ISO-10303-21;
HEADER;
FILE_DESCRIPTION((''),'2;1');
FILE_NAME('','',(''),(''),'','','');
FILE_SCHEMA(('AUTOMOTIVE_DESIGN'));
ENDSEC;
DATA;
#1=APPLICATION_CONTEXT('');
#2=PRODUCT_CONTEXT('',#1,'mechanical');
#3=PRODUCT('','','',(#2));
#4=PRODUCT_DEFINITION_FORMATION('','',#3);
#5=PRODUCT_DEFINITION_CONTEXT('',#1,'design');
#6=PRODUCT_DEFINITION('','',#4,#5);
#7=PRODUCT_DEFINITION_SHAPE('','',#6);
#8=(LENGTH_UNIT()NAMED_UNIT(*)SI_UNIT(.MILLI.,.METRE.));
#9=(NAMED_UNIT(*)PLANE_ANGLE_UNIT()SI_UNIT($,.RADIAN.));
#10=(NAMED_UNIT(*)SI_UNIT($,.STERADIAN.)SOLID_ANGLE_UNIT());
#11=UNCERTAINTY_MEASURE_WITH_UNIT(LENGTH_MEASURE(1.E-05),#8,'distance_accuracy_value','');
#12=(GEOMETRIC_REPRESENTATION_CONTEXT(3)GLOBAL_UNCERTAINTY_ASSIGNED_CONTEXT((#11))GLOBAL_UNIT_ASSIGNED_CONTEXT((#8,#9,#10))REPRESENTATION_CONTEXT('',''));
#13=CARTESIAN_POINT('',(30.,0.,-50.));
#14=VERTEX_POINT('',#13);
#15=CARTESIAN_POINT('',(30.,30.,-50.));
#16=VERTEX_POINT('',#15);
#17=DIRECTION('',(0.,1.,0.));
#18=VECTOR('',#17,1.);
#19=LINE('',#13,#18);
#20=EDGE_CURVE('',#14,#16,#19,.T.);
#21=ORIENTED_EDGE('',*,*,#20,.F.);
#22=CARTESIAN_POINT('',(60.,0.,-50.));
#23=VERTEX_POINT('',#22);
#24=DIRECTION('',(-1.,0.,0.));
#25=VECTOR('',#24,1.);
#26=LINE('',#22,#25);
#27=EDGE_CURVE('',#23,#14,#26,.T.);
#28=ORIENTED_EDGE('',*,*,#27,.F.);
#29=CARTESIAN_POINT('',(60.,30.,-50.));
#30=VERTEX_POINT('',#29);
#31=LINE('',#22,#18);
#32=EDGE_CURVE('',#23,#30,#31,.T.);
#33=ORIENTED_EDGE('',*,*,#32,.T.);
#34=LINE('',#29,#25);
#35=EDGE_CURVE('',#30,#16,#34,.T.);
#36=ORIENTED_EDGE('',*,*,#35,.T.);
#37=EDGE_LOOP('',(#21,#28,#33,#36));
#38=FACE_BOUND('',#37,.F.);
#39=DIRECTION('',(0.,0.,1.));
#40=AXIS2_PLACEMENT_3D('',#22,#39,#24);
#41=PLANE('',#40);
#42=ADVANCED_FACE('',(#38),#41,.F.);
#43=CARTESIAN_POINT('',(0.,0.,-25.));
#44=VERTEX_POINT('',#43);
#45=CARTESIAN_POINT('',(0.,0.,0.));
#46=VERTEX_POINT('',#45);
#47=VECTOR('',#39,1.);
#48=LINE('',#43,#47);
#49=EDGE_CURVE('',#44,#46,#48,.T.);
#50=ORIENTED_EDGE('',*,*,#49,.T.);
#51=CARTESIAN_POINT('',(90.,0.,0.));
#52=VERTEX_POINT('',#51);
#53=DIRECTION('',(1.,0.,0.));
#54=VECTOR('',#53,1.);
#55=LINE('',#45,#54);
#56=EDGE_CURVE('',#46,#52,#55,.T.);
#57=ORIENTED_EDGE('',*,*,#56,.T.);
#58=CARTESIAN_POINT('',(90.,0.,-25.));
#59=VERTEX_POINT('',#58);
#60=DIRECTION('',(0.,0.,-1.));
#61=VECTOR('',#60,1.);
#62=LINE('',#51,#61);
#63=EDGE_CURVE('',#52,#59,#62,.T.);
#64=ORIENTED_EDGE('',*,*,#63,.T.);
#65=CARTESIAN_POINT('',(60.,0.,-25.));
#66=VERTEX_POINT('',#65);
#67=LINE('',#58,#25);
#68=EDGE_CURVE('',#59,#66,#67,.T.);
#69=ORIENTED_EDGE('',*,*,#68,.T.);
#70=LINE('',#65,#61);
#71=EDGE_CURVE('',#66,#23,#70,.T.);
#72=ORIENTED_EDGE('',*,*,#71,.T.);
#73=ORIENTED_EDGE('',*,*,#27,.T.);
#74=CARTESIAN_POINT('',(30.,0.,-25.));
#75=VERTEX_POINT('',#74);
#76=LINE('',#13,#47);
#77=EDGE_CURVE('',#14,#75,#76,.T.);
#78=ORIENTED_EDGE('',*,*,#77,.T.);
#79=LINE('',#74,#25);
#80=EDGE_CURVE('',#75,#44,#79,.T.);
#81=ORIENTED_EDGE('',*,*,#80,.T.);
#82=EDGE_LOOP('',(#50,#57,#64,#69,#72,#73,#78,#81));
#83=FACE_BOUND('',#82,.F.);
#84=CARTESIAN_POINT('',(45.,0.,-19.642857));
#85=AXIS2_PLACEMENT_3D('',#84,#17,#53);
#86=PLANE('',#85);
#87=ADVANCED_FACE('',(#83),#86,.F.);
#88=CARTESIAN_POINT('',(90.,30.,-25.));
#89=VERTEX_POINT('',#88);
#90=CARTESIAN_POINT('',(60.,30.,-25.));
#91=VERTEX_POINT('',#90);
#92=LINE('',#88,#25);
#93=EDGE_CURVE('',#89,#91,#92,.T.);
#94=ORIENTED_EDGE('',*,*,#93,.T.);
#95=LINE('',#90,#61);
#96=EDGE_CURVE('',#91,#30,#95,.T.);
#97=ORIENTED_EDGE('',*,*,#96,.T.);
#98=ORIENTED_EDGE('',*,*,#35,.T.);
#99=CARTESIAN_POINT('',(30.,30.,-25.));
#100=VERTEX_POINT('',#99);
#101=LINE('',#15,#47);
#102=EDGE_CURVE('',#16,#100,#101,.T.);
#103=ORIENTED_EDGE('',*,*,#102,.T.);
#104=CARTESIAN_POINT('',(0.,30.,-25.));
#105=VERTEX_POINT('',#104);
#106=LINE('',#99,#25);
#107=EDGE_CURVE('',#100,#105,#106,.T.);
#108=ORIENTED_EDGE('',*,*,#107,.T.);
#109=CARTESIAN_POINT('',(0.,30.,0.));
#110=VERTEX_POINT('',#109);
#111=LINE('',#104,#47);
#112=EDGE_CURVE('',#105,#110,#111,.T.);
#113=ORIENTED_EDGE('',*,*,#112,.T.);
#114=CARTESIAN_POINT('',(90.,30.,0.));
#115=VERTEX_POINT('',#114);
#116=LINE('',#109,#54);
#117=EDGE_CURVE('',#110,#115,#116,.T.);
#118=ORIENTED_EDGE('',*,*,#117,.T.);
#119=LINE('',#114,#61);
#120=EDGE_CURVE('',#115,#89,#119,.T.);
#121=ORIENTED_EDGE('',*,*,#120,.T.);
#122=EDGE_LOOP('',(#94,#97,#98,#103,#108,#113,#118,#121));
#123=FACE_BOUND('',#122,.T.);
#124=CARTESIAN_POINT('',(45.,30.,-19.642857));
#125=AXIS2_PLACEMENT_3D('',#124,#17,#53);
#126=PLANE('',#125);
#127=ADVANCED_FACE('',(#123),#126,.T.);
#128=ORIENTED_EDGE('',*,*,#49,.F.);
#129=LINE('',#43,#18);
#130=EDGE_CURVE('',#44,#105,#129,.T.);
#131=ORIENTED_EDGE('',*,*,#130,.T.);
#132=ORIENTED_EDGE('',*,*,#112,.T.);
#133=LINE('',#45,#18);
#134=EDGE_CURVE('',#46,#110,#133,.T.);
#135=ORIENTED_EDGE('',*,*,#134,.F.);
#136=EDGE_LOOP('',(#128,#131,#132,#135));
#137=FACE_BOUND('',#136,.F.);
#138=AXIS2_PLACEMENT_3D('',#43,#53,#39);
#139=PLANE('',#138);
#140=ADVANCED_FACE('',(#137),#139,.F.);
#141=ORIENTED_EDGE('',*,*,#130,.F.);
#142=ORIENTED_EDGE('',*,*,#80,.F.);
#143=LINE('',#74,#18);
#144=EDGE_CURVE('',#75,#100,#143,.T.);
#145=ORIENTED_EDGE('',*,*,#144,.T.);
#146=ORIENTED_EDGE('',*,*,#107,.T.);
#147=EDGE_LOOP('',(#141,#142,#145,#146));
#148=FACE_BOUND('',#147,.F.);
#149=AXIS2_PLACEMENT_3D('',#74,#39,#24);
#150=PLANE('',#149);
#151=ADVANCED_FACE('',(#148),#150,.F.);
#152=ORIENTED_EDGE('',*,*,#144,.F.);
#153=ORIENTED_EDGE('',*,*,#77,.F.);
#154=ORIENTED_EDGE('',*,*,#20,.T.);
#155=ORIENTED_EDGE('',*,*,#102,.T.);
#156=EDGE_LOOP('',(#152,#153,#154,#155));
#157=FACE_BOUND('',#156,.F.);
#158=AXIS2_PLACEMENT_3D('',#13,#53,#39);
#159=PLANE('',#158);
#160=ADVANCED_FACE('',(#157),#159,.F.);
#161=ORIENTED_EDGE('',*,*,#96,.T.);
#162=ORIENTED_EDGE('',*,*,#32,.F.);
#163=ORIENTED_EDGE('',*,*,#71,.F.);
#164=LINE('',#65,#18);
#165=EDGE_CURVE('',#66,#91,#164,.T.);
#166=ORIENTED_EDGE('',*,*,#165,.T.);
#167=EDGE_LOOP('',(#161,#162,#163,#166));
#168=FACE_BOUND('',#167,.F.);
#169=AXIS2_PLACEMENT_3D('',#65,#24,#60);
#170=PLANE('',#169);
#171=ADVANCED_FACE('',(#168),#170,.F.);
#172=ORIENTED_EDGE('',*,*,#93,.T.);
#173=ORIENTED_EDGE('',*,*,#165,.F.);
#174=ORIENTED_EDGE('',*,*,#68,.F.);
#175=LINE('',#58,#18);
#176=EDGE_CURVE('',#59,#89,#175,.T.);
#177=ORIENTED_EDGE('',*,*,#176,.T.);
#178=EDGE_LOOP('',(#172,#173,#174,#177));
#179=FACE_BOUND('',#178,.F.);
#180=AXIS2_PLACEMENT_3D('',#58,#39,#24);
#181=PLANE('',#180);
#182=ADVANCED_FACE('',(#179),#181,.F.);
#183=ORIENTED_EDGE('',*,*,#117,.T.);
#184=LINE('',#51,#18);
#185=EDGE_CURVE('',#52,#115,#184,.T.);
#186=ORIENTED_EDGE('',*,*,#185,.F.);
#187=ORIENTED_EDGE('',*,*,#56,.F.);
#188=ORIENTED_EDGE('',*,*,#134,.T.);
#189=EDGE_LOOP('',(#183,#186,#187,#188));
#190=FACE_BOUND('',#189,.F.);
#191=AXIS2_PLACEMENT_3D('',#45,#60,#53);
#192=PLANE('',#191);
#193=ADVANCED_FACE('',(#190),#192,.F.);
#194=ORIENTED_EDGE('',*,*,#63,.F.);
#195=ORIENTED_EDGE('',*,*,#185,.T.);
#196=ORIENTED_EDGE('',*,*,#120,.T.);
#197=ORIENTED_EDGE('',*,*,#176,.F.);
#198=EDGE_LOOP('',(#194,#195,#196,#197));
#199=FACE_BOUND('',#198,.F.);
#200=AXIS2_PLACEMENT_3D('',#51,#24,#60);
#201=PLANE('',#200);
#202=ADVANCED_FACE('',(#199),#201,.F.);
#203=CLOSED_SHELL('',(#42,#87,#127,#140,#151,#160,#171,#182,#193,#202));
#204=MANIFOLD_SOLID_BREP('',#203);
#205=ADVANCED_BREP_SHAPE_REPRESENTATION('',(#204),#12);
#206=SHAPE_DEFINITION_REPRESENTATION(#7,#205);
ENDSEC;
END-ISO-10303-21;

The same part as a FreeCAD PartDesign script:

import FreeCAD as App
import Part
import Sketcher
from FreeCAD import Vector

doc = App.newDocument("Part")
body = doc.addObject("PartDesign::Body", "Body")

sketch1 = doc.addObject("Sketcher::SketchObject", "Sketch")
body.addObject(sketch1)
sketch1.AttachmentSupport = (doc.XZ_Plane, [""])
sketch1.MapMode = "FlatFace"
sketch1.addGeometry([
    Part.LineSegment(Vector(0, 0, 0), Vector(90, 0, 0)),
    Part.LineSegment(Vector(90, 0, 0), Vector(90, -25, 0)),
    Part.LineSegment(Vector(90, -25, 0), Vector(60, -25, 0)),
    Part.LineSegment(Vector(60, -25, 0), Vector(60, -50, 0)),
    Part.LineSegment(Vector(60, -50, 0), Vector(30, -50, 0)),
    Part.LineSegment(Vector(30, -50, 0), Vector(30, -25, 0)),
    Part.LineSegment(Vector(30, -25, 0), Vector(0, -25, 0)),
    Part.LineSegment(Vector(0, -25, 0), Vector(0, 0, 0)),
], False)
sketch1.addConstraint([
    Sketcher.Constraint("Coincident", 0, 2, 1, 1),
    Sketcher.Constraint("Coincident", 1, 2, 2, 1),
    Sketcher.Constraint("Coincident", 2, 2, 3, 1),
    Sketcher.Constraint("Coincident", 3, 2, 4, 1),
    Sketcher.Constraint("Coincident", 4, 2, 5, 1),
    Sketcher.Constraint("Coincident", 5, 2, 6, 1),
    Sketcher.Constraint("Coincident", 6, 2, 7, 1),
    Sketcher.Constraint("Coincident", 7, 2, 0, 1),
    Sketcher.Constraint("Horizontal", 0),
    Sketcher.Constraint("Vertical", 1),
    Sketcher.Constraint("Horizontal", 2),
    Sketcher.Constraint("Vertical", 3),
    Sketcher.Constraint("Horizontal", 4),
    Sketcher.Constraint("Vertical", 5),
    Sketcher.Constraint("Horizontal", 6),
    Sketcher.Constraint("Vertical", 7),
    Sketcher.Constraint("Coincident", 7, 2, -1, 1),
    Sketcher.Constraint("Horizontal", 2, 2, 5, 2),
    Sketcher.Constraint("Equal", 2, 4),
    Sketcher.Constraint("Equal", 4, 6),
    Sketcher.Constraint("Equal", 1, 3),
    Sketcher.Constraint("DistanceX", 0, 1, 0, 2, 90.0),
    Sketcher.Constraint("DistanceY", 1, 2, 1, 1, 25.0),
])
pad1 = doc.addObject("PartDesign::Pad", "Pad")
body.addObject(pad1)
pad1.Profile = sketch1
pad1.Length = 30
pad1.Reversed = True

doc.recompute()
